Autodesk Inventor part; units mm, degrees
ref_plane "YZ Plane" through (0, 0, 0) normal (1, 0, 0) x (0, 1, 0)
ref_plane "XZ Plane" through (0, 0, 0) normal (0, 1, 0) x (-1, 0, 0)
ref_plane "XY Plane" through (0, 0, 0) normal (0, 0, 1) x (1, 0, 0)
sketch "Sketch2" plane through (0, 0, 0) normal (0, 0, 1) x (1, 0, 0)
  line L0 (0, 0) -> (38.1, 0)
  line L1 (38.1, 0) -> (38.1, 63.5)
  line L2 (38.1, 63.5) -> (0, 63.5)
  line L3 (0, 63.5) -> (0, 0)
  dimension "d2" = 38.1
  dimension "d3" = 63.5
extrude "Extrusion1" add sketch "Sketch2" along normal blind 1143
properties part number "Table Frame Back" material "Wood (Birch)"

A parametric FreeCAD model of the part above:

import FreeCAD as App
import Part
import Sketcher

V = App.Vector
Q = App.Units.Quantity

doc = App.newDocument("Part")
body = doc.addObject("PartDesign::Body", "Body")

sketch1 = body.newObject("Sketcher::SketchObject", "Sketch")
sketch1.AttachmentSupport = (doc.getObject("XY_Plane"), [""])
sketch1.MapMode = "FlatFace"
sketch1.addGeometry([
    Part.LineSegment(V(0, 63.5, 0), V(0, 0, 0)),
    Part.LineSegment(V(0, 0, 0), V(38.1, 0, 0)),
    Part.LineSegment(V(38.1, 0, 0), V(38.1, 63.5, 0)),
    Part.LineSegment(V(38.1, 63.5, 0), V(0, 63.5, 0)),
], False)
sketch1.addConstraint([
    Sketcher.Constraint("Coincident", 0, 2, 1, 1),
    Sketcher.Constraint("Coincident", 1, 2, 2, 1),
    Sketcher.Constraint("Coincident", 2, 2, 3, 1),
    Sketcher.Constraint("Coincident", 3, 2, 0, 1),
    Sketcher.Constraint("Vertical", 0),
    Sketcher.Constraint("Horizontal", 1),
    Sketcher.Constraint("Vertical", 2),
    Sketcher.Constraint("Horizontal", 3),
    Sketcher.Constraint("Coincident", 0, 2, -1, 1),
    Sketcher.Constraint("DistanceX", 1, 1, 1, 2, Q("1.5 in")),
    Sketcher.Constraint("DistanceY", 0, 2, 0, 1, Q("2.5 in")),
])
pad1 = body.newObject("PartDesign::Pad", "Pad")
pad1.Profile = sketch1
pad1.Length = Q("45 in")

doc.recompute()
